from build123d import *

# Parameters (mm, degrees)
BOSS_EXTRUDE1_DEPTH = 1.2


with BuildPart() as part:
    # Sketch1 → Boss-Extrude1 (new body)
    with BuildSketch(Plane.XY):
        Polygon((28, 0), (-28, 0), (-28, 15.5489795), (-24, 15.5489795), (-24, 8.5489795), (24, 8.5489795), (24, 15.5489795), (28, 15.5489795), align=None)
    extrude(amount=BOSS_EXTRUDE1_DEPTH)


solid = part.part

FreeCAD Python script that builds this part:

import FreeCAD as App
import Part
import Sketcher
from FreeCAD import Vector

doc = App.newDocument("Part")
body = doc.addObject("PartDesign::Body", "Body")

# Sketch on XY plane
sketch1 = body.newObject("Sketcher::SketchObject", "Sketch")
sketch1.AttachmentSupport = (doc.getObject("XY_Plane"), [""])
sketch1.MapMode = "FlatFace"
sketch1.addGeometry(Part.LineSegment(Vector(-28, 0, 0), Vector(28, 0, 0)), False)
sketch1.addGeometry(Part.LineSegment(Vector(28, 0, 0), Vector(28, 15.5, 0)), False)
sketch1.addGeometry(Part.LineSegment(Vector(28, 15.5, 0), Vector(24, 15.5, 0)), False)
sketch1.addGeometry(Part.LineSegment(Vector(24, 15.5, 0), Vector(24, 8.5, 0)), False)
sketch1.addGeometry(Part.LineSegment(Vector(24, 8.5, 0), Vector(-24, 8.5, 0)), False)
sketch1.addGeometry(Part.LineSegment(Vector(-24, 8.5, 0), Vector(-24, 15.5, 0)), False)
sketch1.addGeometry(Part.LineSegment(Vector(-24, 15.5, 0), Vector(-28, 15.5, 0)), False)
sketch1.addGeometry(Part.LineSegment(Vector(-28, 15.5, 0), Vector(-28, 0, 0)), False)
sketch1.addConstraint(Sketcher.Constraint("Coincident", 0, 2, 1, 1))
sketch1.addConstraint(Sketcher.Constraint("Coincident", 1, 2, 2, 1))
sketch1.addConstraint(Sketcher.Constraint("Coincident", 2, 2, 3, 1))
sketch1.addConstraint(Sketcher.Constraint("Coincident", 3, 2, 4, 1))
sketch1.addConstraint(Sketcher.Constraint("Coincident", 4, 2, 5, 1))
sketch1.addConstraint(Sketcher.Constraint("Coincident", 5, 2, 6, 1))
sketch1.addConstraint(Sketcher.Constraint("Coincident", 6, 2, 7, 1))
sketch1.addConstraint(Sketcher.Constraint("Coincident", 7, 2, 0, 1))
sketch1.addConstraint(Sketcher.Constraint("Horizontal", 0))
sketch1.addConstraint(Sketcher.Constraint("Vertical", 1))
sketch1.addConstraint(Sketcher.Constraint("Horizontal", 2))
sketch1.addConstraint(Sketcher.Constraint("Vertical", 3))
sketch1.addConstraint(Sketcher.Constraint("Horizontal", 4))
sketch1.addConstraint(Sketcher.Constraint("Vertical", 5))
sketch1.addConstraint(Sketcher.Constraint("Horizontal", 6))
sketch1.addConstraint(Sketcher.Constraint("Vertical", 7))
sketch1.addConstraint(Sketcher.Constraint("Symmetric", 0, 2, 7, 2, -1, 1))
sketch1.addConstraint(Sketcher.Constraint("Symmetric", 2, 2, 5, 2, -2))
sketch1.addConstraint(Sketcher.Constraint("DistanceX", 0, 1, 0, 2, 56.0))
sketch1.addConstraint(Sketcher.Constraint("DistanceX", 2, 2, 2, 1, 4.0))
sketch1.addConstraint(Sketcher.Constraint("DistanceY", 3, 2, 3, 1, 7.0))
sketch1.addConstraint(Sketcher.Constraint("DistanceY", 1, 1, 1, 2, 15.548979))
pad1 = body.newObject("PartDesign::Pad", "Pad")
pad1.Profile = sketch1
pad1.Length = 1.2

doc.recompute()
